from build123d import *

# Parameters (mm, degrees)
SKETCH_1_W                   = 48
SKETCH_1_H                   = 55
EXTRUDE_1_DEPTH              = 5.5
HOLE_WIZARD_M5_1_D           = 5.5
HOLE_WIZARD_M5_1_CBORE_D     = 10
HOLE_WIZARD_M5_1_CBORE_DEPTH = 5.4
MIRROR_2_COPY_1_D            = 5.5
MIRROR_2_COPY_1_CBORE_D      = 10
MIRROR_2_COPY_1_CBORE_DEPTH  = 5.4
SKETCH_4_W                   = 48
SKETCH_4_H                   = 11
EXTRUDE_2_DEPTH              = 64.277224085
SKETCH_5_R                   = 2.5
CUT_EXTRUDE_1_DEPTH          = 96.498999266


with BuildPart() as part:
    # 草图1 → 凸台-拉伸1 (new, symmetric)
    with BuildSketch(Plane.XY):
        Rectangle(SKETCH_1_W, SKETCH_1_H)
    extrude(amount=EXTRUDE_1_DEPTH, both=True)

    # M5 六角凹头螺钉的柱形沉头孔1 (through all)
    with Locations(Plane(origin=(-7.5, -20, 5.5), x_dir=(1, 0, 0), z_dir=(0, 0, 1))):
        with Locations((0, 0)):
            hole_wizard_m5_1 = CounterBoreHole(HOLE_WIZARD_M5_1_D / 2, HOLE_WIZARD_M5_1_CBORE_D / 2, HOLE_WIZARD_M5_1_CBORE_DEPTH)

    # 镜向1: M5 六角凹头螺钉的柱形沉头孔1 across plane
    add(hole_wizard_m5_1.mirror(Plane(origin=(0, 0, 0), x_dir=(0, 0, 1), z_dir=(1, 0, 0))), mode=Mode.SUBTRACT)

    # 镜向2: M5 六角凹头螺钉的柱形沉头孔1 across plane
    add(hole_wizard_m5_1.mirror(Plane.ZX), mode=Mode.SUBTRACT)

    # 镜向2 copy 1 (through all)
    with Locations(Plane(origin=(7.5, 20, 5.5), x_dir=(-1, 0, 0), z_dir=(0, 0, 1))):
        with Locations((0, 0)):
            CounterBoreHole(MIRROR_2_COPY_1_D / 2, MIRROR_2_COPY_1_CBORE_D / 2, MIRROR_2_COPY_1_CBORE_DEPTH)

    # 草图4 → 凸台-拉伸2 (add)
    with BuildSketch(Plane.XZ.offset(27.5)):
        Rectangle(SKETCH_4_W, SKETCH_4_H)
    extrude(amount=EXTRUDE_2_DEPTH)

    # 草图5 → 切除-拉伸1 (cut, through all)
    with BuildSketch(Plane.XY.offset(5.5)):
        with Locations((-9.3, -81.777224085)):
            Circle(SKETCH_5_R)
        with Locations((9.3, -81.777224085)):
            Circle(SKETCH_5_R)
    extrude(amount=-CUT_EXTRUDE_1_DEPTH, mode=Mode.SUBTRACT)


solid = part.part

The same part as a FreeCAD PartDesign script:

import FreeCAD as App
import Part
import Sketcher
from FreeCAD import Vector


def add_polygon(sketch, points):
    """Adds a closed chain of lines whose ends are joined by coincident constraints."""
    first, n = sketch.GeometryCount, len(points)
    for a, b in zip(points, points[1:] + points[:1]):
        sketch.addGeometry(Part.LineSegment(App.Vector(*a, 0), App.Vector(*b, 0)), False)
    for i in range(n):
        sketch.addConstraint(Sketcher.Constraint("Coincident", first + i, 2, first + (i + 1) % n, 1))

doc = App.newDocument("Part")
body = doc.addObject("PartDesign::Body", "Body")

# Sketch on XY plane
sketch1 = body.newObject("Sketcher::SketchObject", "Sketch")
sketch1.AttachmentSupport = (doc.getObject("XY_Plane"), [""])
sketch1.MapMode = "FlatFace"
add_polygon(sketch1, [(-24, 28), (-24, -28), (24, -28), (24, 28)])  # lines 0-3
sketch1.addConstraint([
    Sketcher.Constraint("Vertical", 0),
    Sketcher.Constraint("Horizontal", 1),
    Sketcher.Constraint("Vertical", 2),
    Sketcher.Constraint("Horizontal", 3),
    Sketcher.Constraint("Symmetric", 0, 2, 2, 2, -1, 1),
    Sketcher.Constraint("DistanceX", 1, 1, 1, 2, 48.0),
    Sketcher.Constraint("DistanceY", 0, 2, 0, 1, 55.0),
])
pad1 = body.newObject("PartDesign::Pad", "Pad")
pad1.Profile = sketch1
pad1.Length = 11
pad1.Midplane = True

# Sketch on XY plane
sketch2 = body.newObject("Sketcher::SketchObject", "Sketch001")
sketch2.AttachmentSupport = (doc.getObject("XY_Plane"), [""])
sketch2.MapMode = "FlatFace"
sketch2.AttachmentOffset = App.Placement(Vector(0, 0, 5.5), App.Rotation())
sketch2.addGeometry(Part.Circle(Vector(-7.5, -20, 0), Vector(0, 0, 1), 2.8), False)
sketch2.addConstraint([
    Sketcher.Constraint("Diameter", 0, 5.5),
    Sketcher.Constraint("DistanceY", 0, 3, -1, 1, 20.0),
    Sketcher.Constraint("DistanceX", 0, 3, -1, 1, 7.5),
])
doc.recompute()
hole = body.newObject("PartDesign::Hole", "Hole")
hole.Profile = sketch2
hole.ThreadType = "None"
hole.Diameter = 5.5
hole.DepthType = "ThroughAll"
hole.HoleCutType = "Counterbore"
hole.HoleCutDiameter = 10
hole.HoleCutDepth = 5.4
doc.recompute()

mirrored = body.newObject("PartDesign::Mirrored", "Mirrored")
mirrored.Originals = [hole]
mirrored.MirrorPlane = (doc.getObject("YZ_Plane"), [""])
body.Tip = mirrored
doc.recompute()

mirrored2 = body.newObject("PartDesign::Mirrored", "Mirrored001")
mirrored2.Originals = [hole]
mirrored2.MirrorPlane = (doc.getObject("XZ_Plane"), [""])
body.Tip = mirrored2

# Sketch on XY plane
sketch3 = body.newObject("Sketcher::SketchObject", "Sketch002")
sketch3.AttachmentSupport = (doc.getObject("XY_Plane"), [""])
sketch3.MapMode = "FlatFace"
sketch3.AttachmentOffset = App.Placement(Vector(0, 0, 5.5), App.Rotation())
sketch3.addGeometry(Part.Circle(Vector(7.5, 20, 0), Vector(0, 0, 1), 2.8), False)
sketch3.addConstraint([
    Sketcher.Constraint("Diameter", 0, 5.5),
    Sketcher.Constraint("DistanceY", -1, 1, 0, 3, 20.0),
    Sketcher.Constraint("DistanceX", -1, 1, 0, 3, 7.5),
])
doc.recompute()
hole2 = body.newObject("PartDesign::Hole", "Hole001")
hole2.Profile = sketch3
hole2.ThreadType = "None"
hole2.Diameter = 5.5
hole2.DepthType = "ThroughAll"
hole2.HoleCutType = "Counterbore"
hole2.HoleCutDiameter = 10
hole2.HoleCutDepth = 5.4

# Sketch on XZ plane
sketch4 = body.newObject("Sketcher::SketchObject", "Sketch003")
sketch4.AttachmentSupport = (doc.getObject("XZ_Plane"), [""])
sketch4.MapMode = "FlatFace"
sketch4.AttachmentOffset = App.Placement(Vector(0, 0, 27.5), App.Rotation())
add_polygon(sketch4, [(-24, 6), (-24, -6), (24, -6), (24, 6)])  # lines 0-3
sketch4.addConstraint([
    Sketcher.Constraint("Vertical", 0),
    Sketcher.Constraint("Horizontal", 1),
    Sketcher.Constraint("Vertical", 2),
    Sketcher.Constraint("Horizontal", 3),
    Sketcher.Constraint("Symmetric", 0, 2, 2, 2, -1, 1),
    Sketcher.Constraint("DistanceX", 1, 1, 1, 2, 48.0),
    Sketcher.Constraint("DistanceY", 0, 2, 0, 1, 11.0),
])
pad2 = body.newObject("PartDesign::Pad", "Pad001")
pad2.Profile = sketch4
pad2.Length = 64.277224

# Sketch on XY plane
sketch5 = body.newObject("Sketcher::SketchObject", "Sketch004")
sketch5.AttachmentSupport = (doc.getObject("XY_Plane"), [""])
sketch5.MapMode = "FlatFace"
sketch5.AttachmentOffset = App.Placement(Vector(0, 0, 5.5), App.Rotation())
sketch5.addGeometry([
    Part.Circle(Vector(-9.3, -81.8, 0), Vector(0, 0, 1), 2.5),
    Part.Circle(Vector(9.3, -81.8, 0), Vector(0, 0, 1), 2.5),
], False)
sketch5.addConstraint([
    Sketcher.Constraint("Equal", 0, 1),
    Sketcher.Constraint("Symmetric", 0, 3, 1, 3, -2),
    Sketcher.Constraint("Diameter", 0, 5.0),
    Sketcher.Constraint("DistanceX", 0, 3, -1, 1, 9.3),
    Sketcher.Constraint("DistanceY", 0, 3, -1, 1, 81.777224),
])
pocket1 = body.newObject("PartDesign::Pocket", "Pocket")
pocket1.Profile = sketch5
pocket1.Type = "ThroughAll"

doc.recompute()
